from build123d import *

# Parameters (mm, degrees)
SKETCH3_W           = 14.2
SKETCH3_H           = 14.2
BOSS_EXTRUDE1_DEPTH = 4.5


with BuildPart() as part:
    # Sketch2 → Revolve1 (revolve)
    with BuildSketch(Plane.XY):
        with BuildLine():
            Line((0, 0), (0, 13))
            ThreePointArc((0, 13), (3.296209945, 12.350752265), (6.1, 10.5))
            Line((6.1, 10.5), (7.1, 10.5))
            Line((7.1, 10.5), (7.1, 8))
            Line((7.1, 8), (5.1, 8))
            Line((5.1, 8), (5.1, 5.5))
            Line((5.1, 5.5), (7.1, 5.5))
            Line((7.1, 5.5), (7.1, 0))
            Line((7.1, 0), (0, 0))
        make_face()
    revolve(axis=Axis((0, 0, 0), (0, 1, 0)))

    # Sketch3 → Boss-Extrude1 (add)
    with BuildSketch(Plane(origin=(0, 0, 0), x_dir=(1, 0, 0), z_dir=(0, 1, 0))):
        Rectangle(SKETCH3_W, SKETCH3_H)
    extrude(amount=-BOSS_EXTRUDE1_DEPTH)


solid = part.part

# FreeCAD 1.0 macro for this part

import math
import FreeCAD as App
import Part
import Sketcher
from FreeCAD import Vector
Q = App.Units.Quantity

doc = App.newDocument("Part")
params = doc.addObject("Spreadsheet::Sheet", "Params")
for row, (alias, value) in enumerate([
    ("sketch1_width", "2 mm"),
    ("sketch1_width2", "1 mm"),
    ("sketch1_height", "13 mm"),
    ("sketch1_width3", "7.1 mm"),
    ("sketch1_height2", "5.5 mm"),
    ("revolution_angle", "360 deg"),
    ("sketch2_width", "14.2 mm"),
    ("pad1_length", "4.5 mm"),
], start=1):
    params.set(f"A{row}", alias)
    params.set(f"B{row}", "=" + value)
    params.setAlias(f"B{row}", alias)

body = doc.addObject("PartDesign::Body", "Body")

# Sketch on XY plane
sketch1 = doc.addObject("Sketcher::SketchObject", "Sketch")
body.addObject(sketch1)
sketch1.AttachmentSupport = (doc.XY_Plane, [""])
sketch1.MapMode = "FlatFace"
sketch1.addGeometry([
    Part.LineSegment(Vector(0, 13, 0), Vector(0, 0, 0)),  # 0
    Part.LineSegment(Vector(0, 0, 0), Vector(7.1, 0, 0)),  # 1
    Part.LineSegment(Vector(7.1, 0, 0), Vector(7.1, 5.5, 0)),  # 2
    Part.LineSegment(Vector(7.1, 5.5, 0), Vector(5.1, 5.5, 0)),  # 3
    Part.LineSegment(Vector(5.1, 5.5, 0), Vector(5.1, 8, 0)),  # 4
    Part.LineSegment(Vector(5.1, 8, 0), Vector(7.1, 8, 0)),  # 5
    Part.LineSegment(Vector(7.1, 8, 0), Vector(7.1, 10.5, 0)),  # 6
    Part.LineSegment(Vector(7.1, 10.5, 0), Vector(6.1, 10.5, 0)),  # 7
    Part.ArcOfCircle(Part.Circle(Vector(0, 4.3, 0), Vector(0, 0, 1), 8.7), math.radians(45), math.radians(90)),  # 8
], False)
sketch1.addConstraint([
    Sketcher.Constraint("Coincident", 0, 2, 1, 1),
    Sketcher.Constraint("Coincident", 1, 2, 2, 1),
    Sketcher.Constraint("Coincident", 2, 2, 3, 1),
    Sketcher.Constraint("Coincident", 3, 2, 4, 1),
    Sketcher.Constraint("Coincident", 4, 2, 5, 1),
    Sketcher.Constraint("Coincident", 5, 2, 6, 1),
    Sketcher.Constraint("Coincident", 6, 2, 7, 1),
    Sketcher.Constraint("Coincident", 7, 2, 8, 1),
    Sketcher.Constraint("Coincident", 8, 2, 0, 1),
    Sketcher.Constraint("Vertical", 0),
    Sketcher.Constraint("Horizontal", 1),
    Sketcher.Constraint("Vertical", 2),
    Sketcher.Constraint("Horizontal", 3),
    Sketcher.Constraint("Vertical", 4),
    Sketcher.Constraint("Horizontal", 5),
    Sketcher.Constraint("Vertical", 6),
    Sketcher.Constraint("Horizontal", 7),
    Sketcher.Constraint("Coincident", 0, 2, -1, 1),
    Sketcher.Constraint("PointOnObject", 8, 3, -2),
    Sketcher.Constraint("Vertical", 2, 2, 5, 2),
    Sketcher.Constraint("Equal", 4, 6),
    Sketcher.Constraint("DistanceX", 3, 2, 3, 1, Q("2 mm")),
    Sketcher.Constraint("DistanceX", 7, 2, 7, 1, Q("1 mm")),
    Sketcher.Constraint("DistanceY", 0, 2, 0, 1, Q("13 mm")),
    Sketcher.Constraint("DistanceX", 1, 1, 1, 2, Q("7.1 mm")),
    Sketcher.Constraint("DistanceY", 2, 1, 2, 2, Q("5.5 mm")),
    Sketcher.Constraint("DistanceY", 4, 1, 4, 2, Q("2.5 mm")),
])
sketch1.setExpression("Constraints[21]", "Params.sketch1_width")
sketch1.setExpression("Constraints[22]", "Params.sketch1_width2")
sketch1.setExpression("Constraints[23]", "Params.sketch1_height")
sketch1.setExpression("Constraints[24]", "Params.sketch1_width3")
sketch1.setExpression("Constraints[25]", "Params.sketch1_height2")
revolution = doc.addObject("PartDesign::Revolution", "Revolution")
body.addObject(revolution)
revolution.Profile = sketch1
revolution.ReferenceAxis = (sketch1, ["V_Axis"])
revolution.setExpression("Angle", "Params.revolution_angle")

# Sketch on XZ plane
sketch2 = doc.addObject("Sketcher::SketchObject", "Sketch001")
body.addObject(sketch2)
sketch2.AttachmentSupport = (doc.XZ_Plane, [""])
sketch2.MapMode = "FlatFace"
sketch2.addGeometry([
    Part.LineSegment(Vector(-7, -7, 0), Vector(-7, 7, 0)),
    Part.LineSegment(Vector(-7, 7, 0), Vector(7, 7, 0)),
    Part.LineSegment(Vector(7, 7, 0), Vector(7, -7, 0)),
    Part.LineSegment(Vector(7, -7, 0), Vector(-7, -7, 0)),
], False)
sketch2.addConstraint([
    Sketcher.Constraint("Coincident", 0, 2, 1, 1),
    Sketcher.Constraint("Coincident", 1, 2, 2, 1),
    Sketcher.Constraint("Coincident", 2, 2, 3, 1),
    Sketcher.Constraint("Coincident", 3, 2, 0, 1),
    Sketcher.Constraint("Vertical", 0),
    Sketcher.Constraint("Horizontal", 1),
    Sketcher.Constraint("Vertical", 2),
    Sketcher.Constraint("Horizontal", 3),
    Sketcher.Constraint("Symmetric", 0, 2, 2, 2, -1, 1),
    Sketcher.Constraint("Equal", 3, 0),
    Sketcher.Constraint("DistanceX", 1, 1, 1, 2, Q("14.2 mm")),
])
sketch2.setExpression("Constraints[10]", "Params.sketch2_width")
pad1 = doc.addObject("PartDesign::Pad", "Pad")
body.addObject(pad1)
pad1.Profile = sketch2
pad1.setExpression("Length", "Params.pad1_length")

doc.recompute()
